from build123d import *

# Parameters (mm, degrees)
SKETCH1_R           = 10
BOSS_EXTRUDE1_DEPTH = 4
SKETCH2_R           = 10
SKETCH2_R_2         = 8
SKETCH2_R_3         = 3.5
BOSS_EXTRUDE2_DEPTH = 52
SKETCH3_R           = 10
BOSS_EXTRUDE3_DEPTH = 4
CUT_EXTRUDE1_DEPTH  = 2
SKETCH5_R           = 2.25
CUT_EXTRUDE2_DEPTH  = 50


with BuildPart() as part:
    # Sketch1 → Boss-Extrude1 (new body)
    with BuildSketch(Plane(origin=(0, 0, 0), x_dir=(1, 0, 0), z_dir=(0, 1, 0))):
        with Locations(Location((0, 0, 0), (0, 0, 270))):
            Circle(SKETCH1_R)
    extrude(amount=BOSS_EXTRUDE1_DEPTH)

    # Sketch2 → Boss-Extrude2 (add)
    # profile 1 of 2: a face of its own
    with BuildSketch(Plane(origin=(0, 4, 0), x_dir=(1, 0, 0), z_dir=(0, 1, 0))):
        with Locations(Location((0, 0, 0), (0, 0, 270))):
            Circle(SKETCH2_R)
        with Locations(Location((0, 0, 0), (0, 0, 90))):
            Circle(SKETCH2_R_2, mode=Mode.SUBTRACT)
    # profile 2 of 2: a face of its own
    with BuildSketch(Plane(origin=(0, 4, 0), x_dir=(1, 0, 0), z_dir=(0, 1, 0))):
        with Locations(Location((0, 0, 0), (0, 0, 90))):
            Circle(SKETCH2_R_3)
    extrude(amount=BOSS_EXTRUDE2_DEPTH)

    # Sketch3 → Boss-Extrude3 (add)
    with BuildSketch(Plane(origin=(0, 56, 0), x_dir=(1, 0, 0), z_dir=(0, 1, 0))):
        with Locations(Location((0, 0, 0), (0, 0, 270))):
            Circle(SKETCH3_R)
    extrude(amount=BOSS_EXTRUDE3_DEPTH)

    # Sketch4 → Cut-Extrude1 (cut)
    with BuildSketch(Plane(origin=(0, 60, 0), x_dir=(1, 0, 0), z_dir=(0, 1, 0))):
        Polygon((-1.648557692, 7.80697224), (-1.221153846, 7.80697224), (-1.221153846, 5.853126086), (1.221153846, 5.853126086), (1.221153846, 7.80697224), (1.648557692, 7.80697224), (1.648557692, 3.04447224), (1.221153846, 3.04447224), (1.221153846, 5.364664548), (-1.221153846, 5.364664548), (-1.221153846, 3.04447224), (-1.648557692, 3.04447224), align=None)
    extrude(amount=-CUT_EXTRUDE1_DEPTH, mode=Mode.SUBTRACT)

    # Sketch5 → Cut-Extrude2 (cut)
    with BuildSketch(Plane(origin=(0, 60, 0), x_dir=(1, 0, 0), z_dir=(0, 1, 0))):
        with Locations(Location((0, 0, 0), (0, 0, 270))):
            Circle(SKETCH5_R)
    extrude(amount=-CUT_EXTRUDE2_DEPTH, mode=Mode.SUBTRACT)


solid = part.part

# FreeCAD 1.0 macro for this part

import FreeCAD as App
import Part
import Sketcher


def add_polygon(sketch, points):
    """Adds a closed chain of lines whose ends are joined by coincident constraints."""
    first, n = sketch.GeometryCount, len(points)
    for a, b in zip(points, points[1:] + points[:1]):
        sketch.addGeometry(Part.LineSegment(App.Vector(*a, 0), App.Vector(*b, 0)), False)
    for i in range(n):
        sketch.addConstraint(Sketcher.Constraint("Coincident", first + i, 2, first + (i + 1) % n, 1))

doc = App.newDocument("Part")
body = doc.addObject("PartDesign::Body", "Body")

sketch1 = doc.addObject("Sketcher::SketchObject", "Sketch")
body.addObject(sketch1)
sketch1.AttachmentSupport = (doc.XZ_Plane, [""])
sketch1.MapMode = "FlatFace"
sketch1.addGeometry(Part.Circle(App.Vector(0, 0, 0), App.Vector(0, 0, 1), 10), False)
sketch1.addConstraint(Sketcher.Constraint("Coincident", 0, 3, -1, 1))
sketch1.addConstraint(Sketcher.Constraint("Diameter", 0, 20.0))
pad1 = doc.addObject("PartDesign::Pad", "Pad")
body.addObject(pad1)
pad1.Profile = sketch1
pad1.Length = 4
pad1.Reversed = True

sketch2 = doc.addObject("Sketcher::SketchObject", "Sketch001")
body.addObject(sketch2)
sketch2.AttachmentSupport = (doc.XZ_Plane, [""])
sketch2.MapMode = "FlatFace"
sketch2.AttachmentOffset = App.Placement(App.Vector(0, 0, -4), App.Rotation())
sketch2.addGeometry(Part.Circle(App.Vector(0, 0, 0), App.Vector(0, 0, 1), 10), False)
sketch2.addGeometry(Part.Circle(App.Vector(0, 0, 0), App.Vector(0, 0, 1), 8), False)
sketch2.addGeometry(Part.Circle(App.Vector(0, 0, 0), App.Vector(0, 0, 1), 3.5), False)
sketch2.addConstraint(Sketcher.Constraint("Coincident", 0, 3, -1, 1))
sketch2.addConstraint(Sketcher.Constraint("Coincident", 1, 3, -1, 1))
sketch2.addConstraint(Sketcher.Constraint("Coincident", 2, 3, -1, 1))
sketch2.addConstraint(Sketcher.Constraint("Diameter", 0, 20.0))
sketch2.addConstraint(Sketcher.Constraint("Diameter", 1, 16.0))
sketch2.addConstraint(Sketcher.Constraint("Diameter", 2, 7.0))
pad2 = doc.addObject("PartDesign::Pad", "Pad001")
body.addObject(pad2)
pad2.Profile = sketch2
pad2.Length = 52
pad2.Reversed = True

sketch3 = doc.addObject("Sketcher::SketchObject", "Sketch002")
body.addObject(sketch3)
sketch3.AttachmentSupport = (doc.XZ_Plane, [""])
sketch3.MapMode = "FlatFace"
sketch3.AttachmentOffset = App.Placement(App.Vector(0, 0, -56), App.Rotation())
sketch3.addGeometry(Part.Circle(App.Vector(0, 0, 0), App.Vector(0, 0, 1), 10), False)
sketch3.addConstraint(Sketcher.Constraint("Coincident", 0, 3, -1, 1))
sketch3.addConstraint(Sketcher.Constraint("Diameter", 0, 20.0))
pad3 = doc.addObject("PartDesign::Pad", "Pad002")
body.addObject(pad3)
pad3.Profile = sketch3
pad3.Length = 4
pad3.Reversed = True

sketch4 = doc.addObject("Sketcher::SketchObject", "Sketch003")
body.addObject(sketch4)
sketch4.AttachmentSupport = (doc.XZ_Plane, [""])
sketch4.MapMode = "FlatFace"
sketch4.AttachmentOffset = App.Placement(App.Vector(0, 0, -60), App.Rotation())
add_polygon(sketch4, [(-1.221154, -7.806972), (-1.648558, -7.806972), (-1.648558, -3.044472), (-1.221154, -3.044472), (-1.221154, -5.364665), (1.221154, -5.364665), (1.221154, -3.044472), (1.648558, -3.044472), (1.648558, -7.806972), (1.221154, -7.806972), (1.221154, -5.853126), (-1.221154, -5.853126)])
sketch4.addConstraint(Sketcher.Constraint("Horizontal", 0))
sketch4.addConstraint(Sketcher.Constraint("Vertical", 1))
sketch4.addConstraint(Sketcher.Constraint("Horizontal", 2))
sketch4.addConstraint(Sketcher.Constraint("Vertical", 3))
sketch4.addConstraint(Sketcher.Constraint("Horizontal", 4))
sketch4.addConstraint(Sketcher.Constraint("Vertical", 5))
sketch4.addConstraint(Sketcher.Constraint("Horizontal", 6))
sketch4.addConstraint(Sketcher.Constraint("Vertical", 7))
sketch4.addConstraint(Sketcher.Constraint("Horizontal", 8))
sketch4.addConstraint(Sketcher.Constraint("Vertical", 9))
sketch4.addConstraint(Sketcher.Constraint("Horizontal", 10))
sketch4.addConstraint(Sketcher.Constraint("Vertical", 11))
sketch4.addConstraint(Sketcher.Constraint("Symmetric", 2, 2, 5, 2, -2))
sketch4.addConstraint(Sketcher.Constraint("Symmetric", 0, 2, 7, 2, -2))
sketch4.addConstraint(Sketcher.Constraint("Vertical", 5, 2, 8, 2))
sketch4.addConstraint(Sketcher.Constraint("Vertical", 3, 2, 10, 2))
sketch4.addConstraint(Sketcher.Constraint("DistanceY", 1, 1, 1, 2, 4.7625))
sketch4.addConstraint(Sketcher.Constraint("DistanceX", 0, 2, 0, 1, 0.427404))
sketch4.addConstraint(Sketcher.Constraint("DistanceX", 4, 1, 4, 2, 2.442308))
sketch4.addConstraint(Sketcher.Constraint("DistanceY", 3, 2, 3, 1, 2.320192))
sketch4.addConstraint(Sketcher.Constraint("DistanceY", 9, 1, 9, 2, 1.953846))
sketch4.addConstraint(Sketcher.Constraint("DistanceY", 0, 2, -1, 1, 7.806972))
pocket1 = doc.addObject("PartDesign::Pocket", "Pocket")
body.addObject(pocket1)
pocket1.Profile = sketch4
pocket1.Length = 2
pocket1.Reversed = True

sketch5 = doc.addObject("Sketcher::SketchObject", "Sketch004")
body.addObject(sketch5)
sketch5.AttachmentSupport = (doc.XZ_Plane, [""])
sketch5.MapMode = "FlatFace"
sketch5.AttachmentOffset = App.Placement(App.Vector(0, 0, -60), App.Rotation())
sketch5.addGeometry(Part.Circle(App.Vector(0, 0, 0), App.Vector(0, 0, 1), 2.25), False)
sketch5.addConstraint(Sketcher.Constraint("Coincident", 0, 3, -1, 1))
sketch5.addConstraint(Sketcher.Constraint("Diameter", 0, 4.5))
pocket2 = doc.addObject("PartDesign::Pocket", "Pocket001")
body.addObject(pocket2)
pocket2.Profile = sketch5
pocket2.Length = 50
pocket2.Reversed = True

doc.recompute()
